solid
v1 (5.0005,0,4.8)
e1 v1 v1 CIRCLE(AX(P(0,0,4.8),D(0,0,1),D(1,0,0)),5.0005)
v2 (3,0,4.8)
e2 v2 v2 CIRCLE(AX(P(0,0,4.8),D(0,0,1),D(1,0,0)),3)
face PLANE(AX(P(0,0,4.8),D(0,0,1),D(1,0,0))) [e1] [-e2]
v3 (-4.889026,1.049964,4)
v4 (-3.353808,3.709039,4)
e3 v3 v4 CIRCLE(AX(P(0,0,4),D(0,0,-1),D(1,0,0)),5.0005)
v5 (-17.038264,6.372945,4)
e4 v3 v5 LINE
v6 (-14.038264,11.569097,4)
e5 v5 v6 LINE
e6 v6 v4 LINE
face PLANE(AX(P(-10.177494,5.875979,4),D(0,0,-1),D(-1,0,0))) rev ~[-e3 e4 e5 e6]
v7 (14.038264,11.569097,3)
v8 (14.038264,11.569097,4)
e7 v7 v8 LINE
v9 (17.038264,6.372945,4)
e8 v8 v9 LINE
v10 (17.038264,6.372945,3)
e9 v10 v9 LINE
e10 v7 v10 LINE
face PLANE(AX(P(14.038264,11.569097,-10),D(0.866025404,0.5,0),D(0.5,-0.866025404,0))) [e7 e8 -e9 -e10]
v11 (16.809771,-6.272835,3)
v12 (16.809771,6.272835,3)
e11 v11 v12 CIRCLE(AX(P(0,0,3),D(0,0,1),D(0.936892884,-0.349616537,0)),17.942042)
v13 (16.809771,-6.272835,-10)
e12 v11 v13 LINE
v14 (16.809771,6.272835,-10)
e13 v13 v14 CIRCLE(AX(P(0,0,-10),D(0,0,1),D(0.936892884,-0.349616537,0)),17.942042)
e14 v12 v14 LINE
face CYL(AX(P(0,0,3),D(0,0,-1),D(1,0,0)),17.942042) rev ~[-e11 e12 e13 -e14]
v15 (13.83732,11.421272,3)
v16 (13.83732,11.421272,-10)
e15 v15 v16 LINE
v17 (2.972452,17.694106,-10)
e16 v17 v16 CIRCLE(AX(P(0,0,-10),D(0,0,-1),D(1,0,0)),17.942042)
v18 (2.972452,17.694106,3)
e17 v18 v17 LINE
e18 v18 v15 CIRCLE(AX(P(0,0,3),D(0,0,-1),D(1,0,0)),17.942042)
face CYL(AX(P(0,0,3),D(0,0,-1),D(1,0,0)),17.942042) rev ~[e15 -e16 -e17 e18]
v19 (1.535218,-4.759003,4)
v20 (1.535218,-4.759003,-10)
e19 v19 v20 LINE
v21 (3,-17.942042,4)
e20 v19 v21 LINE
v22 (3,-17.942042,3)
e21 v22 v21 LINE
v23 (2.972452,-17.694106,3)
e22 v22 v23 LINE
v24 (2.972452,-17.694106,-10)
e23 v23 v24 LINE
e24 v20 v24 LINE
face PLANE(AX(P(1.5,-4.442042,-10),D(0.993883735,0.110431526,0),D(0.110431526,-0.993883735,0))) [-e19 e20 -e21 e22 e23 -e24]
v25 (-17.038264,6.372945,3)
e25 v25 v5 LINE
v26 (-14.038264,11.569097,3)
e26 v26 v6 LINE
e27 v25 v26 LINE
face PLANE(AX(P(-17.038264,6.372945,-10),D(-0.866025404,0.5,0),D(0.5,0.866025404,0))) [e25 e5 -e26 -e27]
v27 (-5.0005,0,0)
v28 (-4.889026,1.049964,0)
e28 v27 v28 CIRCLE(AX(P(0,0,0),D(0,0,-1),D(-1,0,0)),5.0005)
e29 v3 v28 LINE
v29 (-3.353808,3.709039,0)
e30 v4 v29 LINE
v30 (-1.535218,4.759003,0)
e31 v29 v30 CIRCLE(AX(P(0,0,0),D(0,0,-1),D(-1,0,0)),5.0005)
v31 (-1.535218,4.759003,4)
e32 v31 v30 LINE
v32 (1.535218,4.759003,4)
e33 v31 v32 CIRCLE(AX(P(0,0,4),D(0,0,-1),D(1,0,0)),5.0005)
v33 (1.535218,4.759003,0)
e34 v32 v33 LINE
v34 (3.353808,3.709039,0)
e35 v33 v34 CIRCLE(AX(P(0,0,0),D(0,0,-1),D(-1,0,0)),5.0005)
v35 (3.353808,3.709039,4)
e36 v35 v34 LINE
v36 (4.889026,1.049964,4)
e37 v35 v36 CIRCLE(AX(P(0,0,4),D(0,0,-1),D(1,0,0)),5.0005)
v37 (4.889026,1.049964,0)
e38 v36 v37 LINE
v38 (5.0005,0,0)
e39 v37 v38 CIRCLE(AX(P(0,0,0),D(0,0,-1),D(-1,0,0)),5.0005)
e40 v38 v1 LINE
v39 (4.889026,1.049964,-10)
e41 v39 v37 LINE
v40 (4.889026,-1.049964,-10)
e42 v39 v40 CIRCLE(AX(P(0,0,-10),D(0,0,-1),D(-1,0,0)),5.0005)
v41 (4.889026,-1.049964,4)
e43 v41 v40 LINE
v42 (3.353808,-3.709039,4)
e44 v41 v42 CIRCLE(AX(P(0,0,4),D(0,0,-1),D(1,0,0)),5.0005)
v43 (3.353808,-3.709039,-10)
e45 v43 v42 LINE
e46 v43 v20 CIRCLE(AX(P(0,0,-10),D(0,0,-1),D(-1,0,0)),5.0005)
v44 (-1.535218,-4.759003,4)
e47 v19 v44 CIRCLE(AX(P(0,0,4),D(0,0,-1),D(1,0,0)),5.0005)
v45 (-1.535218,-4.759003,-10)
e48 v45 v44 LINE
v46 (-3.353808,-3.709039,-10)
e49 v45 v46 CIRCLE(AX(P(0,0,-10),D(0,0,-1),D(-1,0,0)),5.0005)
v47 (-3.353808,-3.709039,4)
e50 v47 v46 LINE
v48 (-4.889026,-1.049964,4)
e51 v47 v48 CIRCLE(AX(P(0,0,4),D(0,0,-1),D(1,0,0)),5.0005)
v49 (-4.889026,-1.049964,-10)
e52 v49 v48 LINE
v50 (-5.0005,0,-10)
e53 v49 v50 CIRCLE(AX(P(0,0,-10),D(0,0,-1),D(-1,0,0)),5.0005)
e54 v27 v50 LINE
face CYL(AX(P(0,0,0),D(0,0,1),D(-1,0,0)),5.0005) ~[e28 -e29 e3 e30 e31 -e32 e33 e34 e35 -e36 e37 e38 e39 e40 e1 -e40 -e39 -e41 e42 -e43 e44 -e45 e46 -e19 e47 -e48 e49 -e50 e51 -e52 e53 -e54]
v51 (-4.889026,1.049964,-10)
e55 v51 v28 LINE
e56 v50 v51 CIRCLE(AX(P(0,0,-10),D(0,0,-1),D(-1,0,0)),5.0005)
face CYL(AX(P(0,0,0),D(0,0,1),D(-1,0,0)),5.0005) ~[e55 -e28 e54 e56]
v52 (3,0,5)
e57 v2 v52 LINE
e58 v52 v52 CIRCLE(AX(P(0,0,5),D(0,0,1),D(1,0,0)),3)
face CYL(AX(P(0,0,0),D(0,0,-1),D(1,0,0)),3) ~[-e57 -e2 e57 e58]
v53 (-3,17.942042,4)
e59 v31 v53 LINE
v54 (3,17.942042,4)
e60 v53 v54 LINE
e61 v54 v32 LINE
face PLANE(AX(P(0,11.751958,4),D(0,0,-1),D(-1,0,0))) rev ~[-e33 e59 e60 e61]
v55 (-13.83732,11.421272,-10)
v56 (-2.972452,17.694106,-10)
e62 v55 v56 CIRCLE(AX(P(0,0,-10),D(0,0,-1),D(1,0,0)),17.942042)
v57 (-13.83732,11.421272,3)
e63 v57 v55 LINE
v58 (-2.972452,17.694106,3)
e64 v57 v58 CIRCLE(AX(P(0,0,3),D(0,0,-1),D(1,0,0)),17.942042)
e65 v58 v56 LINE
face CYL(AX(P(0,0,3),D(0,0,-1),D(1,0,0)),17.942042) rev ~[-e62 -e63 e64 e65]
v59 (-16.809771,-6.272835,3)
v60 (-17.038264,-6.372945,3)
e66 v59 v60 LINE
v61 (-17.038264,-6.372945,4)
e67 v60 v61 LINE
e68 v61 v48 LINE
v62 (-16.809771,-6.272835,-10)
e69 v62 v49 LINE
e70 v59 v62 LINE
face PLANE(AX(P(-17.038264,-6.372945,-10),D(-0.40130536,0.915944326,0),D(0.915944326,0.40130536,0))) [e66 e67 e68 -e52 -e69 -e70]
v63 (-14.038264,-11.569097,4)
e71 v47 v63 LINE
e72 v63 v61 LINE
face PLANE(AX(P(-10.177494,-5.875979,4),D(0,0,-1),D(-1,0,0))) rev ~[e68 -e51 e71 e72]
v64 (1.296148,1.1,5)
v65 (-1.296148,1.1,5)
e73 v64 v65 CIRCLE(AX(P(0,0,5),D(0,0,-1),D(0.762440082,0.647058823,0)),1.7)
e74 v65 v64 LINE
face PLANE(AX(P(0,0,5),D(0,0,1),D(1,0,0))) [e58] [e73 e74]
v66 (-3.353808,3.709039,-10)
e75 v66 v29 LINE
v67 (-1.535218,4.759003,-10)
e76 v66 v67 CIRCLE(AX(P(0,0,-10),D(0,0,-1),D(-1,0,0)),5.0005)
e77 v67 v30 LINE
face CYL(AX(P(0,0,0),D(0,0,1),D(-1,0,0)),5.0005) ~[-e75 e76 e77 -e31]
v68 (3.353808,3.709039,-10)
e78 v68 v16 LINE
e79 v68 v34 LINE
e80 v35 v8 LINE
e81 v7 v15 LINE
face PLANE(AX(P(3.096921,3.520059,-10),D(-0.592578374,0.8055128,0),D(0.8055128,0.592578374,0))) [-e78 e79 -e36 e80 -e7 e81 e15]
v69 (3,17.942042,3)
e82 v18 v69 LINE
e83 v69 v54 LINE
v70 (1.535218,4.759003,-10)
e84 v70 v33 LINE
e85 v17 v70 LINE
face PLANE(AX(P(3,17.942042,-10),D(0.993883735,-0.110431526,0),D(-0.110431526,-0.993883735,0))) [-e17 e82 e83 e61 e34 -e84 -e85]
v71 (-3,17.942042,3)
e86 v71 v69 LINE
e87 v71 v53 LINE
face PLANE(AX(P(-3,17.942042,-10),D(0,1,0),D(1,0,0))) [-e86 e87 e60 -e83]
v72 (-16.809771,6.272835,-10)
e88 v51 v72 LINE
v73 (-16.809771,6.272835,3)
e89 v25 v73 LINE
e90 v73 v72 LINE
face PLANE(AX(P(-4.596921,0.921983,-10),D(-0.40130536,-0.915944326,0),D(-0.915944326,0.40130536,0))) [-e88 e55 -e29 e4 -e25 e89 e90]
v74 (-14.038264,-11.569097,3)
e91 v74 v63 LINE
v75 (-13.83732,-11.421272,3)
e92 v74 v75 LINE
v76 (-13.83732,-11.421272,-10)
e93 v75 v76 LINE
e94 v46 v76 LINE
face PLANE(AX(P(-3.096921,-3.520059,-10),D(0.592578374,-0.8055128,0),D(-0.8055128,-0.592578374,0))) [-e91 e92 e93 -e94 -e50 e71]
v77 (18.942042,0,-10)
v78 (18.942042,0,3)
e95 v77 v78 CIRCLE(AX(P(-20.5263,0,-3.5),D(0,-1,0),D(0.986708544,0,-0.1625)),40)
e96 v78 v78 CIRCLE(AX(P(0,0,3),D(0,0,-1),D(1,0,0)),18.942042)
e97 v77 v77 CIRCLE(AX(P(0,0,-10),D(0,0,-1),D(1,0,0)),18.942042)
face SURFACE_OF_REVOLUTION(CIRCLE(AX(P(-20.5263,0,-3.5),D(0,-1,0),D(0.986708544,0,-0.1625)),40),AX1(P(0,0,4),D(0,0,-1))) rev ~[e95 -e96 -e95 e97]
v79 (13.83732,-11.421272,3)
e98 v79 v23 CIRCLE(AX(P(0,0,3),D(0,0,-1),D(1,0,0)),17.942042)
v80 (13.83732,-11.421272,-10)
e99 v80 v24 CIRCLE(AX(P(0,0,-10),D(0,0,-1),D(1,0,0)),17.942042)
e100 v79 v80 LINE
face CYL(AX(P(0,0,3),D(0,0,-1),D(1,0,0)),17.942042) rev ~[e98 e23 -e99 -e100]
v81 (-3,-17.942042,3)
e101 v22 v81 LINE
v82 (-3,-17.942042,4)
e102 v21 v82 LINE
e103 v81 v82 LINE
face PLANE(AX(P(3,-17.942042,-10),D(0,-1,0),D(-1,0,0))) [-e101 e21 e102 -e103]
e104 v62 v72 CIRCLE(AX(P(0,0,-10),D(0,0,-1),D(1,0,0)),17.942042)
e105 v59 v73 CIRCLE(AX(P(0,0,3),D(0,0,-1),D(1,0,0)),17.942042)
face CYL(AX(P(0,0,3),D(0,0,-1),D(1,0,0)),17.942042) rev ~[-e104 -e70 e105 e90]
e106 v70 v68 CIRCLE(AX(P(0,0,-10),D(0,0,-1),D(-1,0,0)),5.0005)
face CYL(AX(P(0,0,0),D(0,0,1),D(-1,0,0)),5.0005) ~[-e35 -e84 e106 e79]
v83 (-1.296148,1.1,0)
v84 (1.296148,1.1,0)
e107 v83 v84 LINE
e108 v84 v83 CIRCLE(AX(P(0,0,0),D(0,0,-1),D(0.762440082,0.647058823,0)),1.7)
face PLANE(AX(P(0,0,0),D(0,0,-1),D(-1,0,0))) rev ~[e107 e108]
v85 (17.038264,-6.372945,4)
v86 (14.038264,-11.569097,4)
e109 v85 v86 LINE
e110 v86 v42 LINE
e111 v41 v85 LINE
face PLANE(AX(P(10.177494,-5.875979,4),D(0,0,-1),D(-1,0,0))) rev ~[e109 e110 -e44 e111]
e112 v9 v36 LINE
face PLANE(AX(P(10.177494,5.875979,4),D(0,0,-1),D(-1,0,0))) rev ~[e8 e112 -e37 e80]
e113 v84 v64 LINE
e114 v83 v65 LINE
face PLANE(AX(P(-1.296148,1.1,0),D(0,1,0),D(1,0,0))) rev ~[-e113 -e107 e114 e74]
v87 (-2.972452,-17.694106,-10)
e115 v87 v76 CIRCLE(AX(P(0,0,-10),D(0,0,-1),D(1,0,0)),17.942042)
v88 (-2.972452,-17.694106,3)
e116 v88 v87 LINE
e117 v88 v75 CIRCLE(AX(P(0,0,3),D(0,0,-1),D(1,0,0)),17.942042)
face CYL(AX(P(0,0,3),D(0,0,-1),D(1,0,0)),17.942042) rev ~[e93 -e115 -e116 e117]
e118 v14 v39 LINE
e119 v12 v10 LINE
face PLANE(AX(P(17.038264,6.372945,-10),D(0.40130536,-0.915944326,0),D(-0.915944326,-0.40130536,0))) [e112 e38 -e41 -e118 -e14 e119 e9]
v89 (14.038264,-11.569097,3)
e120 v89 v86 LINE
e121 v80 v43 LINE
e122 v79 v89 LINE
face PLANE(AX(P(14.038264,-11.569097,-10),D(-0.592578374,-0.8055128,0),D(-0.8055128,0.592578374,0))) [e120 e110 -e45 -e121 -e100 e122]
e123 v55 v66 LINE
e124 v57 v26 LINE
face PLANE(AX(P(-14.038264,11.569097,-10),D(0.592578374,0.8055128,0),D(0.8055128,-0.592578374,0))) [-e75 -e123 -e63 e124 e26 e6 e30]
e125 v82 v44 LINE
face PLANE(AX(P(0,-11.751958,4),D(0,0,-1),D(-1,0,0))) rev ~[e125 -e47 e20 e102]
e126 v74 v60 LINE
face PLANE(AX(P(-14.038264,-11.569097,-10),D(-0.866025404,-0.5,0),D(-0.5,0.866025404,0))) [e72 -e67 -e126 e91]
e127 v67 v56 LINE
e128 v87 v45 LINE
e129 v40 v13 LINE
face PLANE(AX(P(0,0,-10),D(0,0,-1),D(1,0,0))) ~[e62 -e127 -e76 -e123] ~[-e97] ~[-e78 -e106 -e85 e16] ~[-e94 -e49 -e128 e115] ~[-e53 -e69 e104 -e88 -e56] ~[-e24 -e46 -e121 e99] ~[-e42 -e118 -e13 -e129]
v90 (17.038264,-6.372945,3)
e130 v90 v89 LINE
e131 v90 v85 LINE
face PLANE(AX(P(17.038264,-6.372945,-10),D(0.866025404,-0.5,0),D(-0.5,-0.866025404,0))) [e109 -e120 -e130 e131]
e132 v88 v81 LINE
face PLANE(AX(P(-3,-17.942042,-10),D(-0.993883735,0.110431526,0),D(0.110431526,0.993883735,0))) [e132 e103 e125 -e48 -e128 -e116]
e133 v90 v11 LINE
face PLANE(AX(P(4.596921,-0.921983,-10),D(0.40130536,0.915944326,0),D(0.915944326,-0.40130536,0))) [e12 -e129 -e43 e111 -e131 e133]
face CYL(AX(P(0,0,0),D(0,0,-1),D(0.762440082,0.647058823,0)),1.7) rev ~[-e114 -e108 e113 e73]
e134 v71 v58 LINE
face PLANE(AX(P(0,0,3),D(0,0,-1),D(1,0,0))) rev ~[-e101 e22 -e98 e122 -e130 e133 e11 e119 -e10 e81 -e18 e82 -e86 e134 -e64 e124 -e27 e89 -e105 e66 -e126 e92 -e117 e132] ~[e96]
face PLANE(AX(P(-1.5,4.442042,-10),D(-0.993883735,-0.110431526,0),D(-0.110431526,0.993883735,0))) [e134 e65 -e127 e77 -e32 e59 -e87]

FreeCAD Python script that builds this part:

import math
import FreeCAD as App
import Part
import Sketcher

V = App.Vector
Q = App.Units.Quantity


def add_polygon(sketch, points):
    """Adds a closed chain of lines whose ends are joined by coincident constraints."""
    first, n = sketch.GeometryCount, len(points)
    for a, b in zip(points, points[1:] + points[:1]):
        sketch.addGeometry(Part.LineSegment(App.Vector(*a, 0), App.Vector(*b, 0)), False)
    for i in range(n):
        sketch.addConstraint(Sketcher.Constraint("Coincident", first + i, 2, first + (i + 1) % n, 1))

doc = App.newDocument("Part")
params = doc.addObject("Spreadsheet::Sheet", "Params")
for row, (alias, value) in enumerate([
    ("sketch1_diameter", "6 mm"),
    ("sketch1_radius", "1.7 mm"),
    ("pad1_length", "5 mm"),
    ("pad2_length", "10 mm"),
    ("sketch3_diameter", "6 mm"),
    ("pad3_length", "4.8 mm"),
    ("sketch4_width", "3 mm"),
    ("sketch4_width2", "6 mm"),
    ("sketch4_length", "6 mm"),
    ("sketch4_length2", "3 mm"),
    ("pad4_length", "14 mm"),
    ("sketch5_radius", "40 mm"),
    ("sketch5_width", "1 mm"),
    ("sketch5_height", "13 mm"),
    ("revolution_angle", "360 deg"),
], start=1):
    params.set(f"A{row}", alias)
    params.set(f"B{row}", "=" + value)
    params.setAlias(f"B{row}", alias)

body = doc.addObject("PartDesign::Body", "Body")

# Sketch on XY plane
sketch1 = doc.addObject("Sketcher::SketchObject", "Sketch")
body.addObject(sketch1)
sketch1.AttachmentSupport = (doc.XY_Plane, [""])
sketch1.MapMode = "FlatFace"
sketch1.addGeometry(Part.Circle(V(0, 0, 0), V(0, 0, 1), 3), False)
sketch1.addGeometry(Part.ArcOfCircle(Part.Circle(V(0, 0, 0), V(0, 0, 1), 1.7), math.radians(140), math.radians(400)), False)
sketch1.addGeometry(Part.LineSegment(V(-1.3, 1.1, 0), V(1.3, 1.1, 0)), False)
sketch1.addConstraint(Sketcher.Constraint("Coincident", 1, 1, 2, 1))
sketch1.addConstraint(Sketcher.Constraint("Coincident", 2, 2, 1, 2))
sketch1.addConstraint(Sketcher.Constraint("Horizontal", 2))
sketch1.addConstraint(Sketcher.Constraint("Coincident", 0, 3, -1, 1))
sketch1.addConstraint(Sketcher.Constraint("Coincident", 1, 3, -1, 1))
sketch1.addConstraint(Sketcher.Constraint("Diameter", 0, Q("6 mm")))
sketch1.addConstraint(Sketcher.Constraint("Radius", 1, Q("1.7 mm")))
sketch1.addConstraint(Sketcher.Constraint("DistanceY", -1, 1, 1, 1, Q("1.1 mm")))
sketch1.setExpression("Constraints[5]", "Params.sketch1_diameter")
sketch1.setExpression("Constraints[6]", "Params.sketch1_radius")
pad1 = doc.addObject("PartDesign::Pad", "Pad")
body.addObject(pad1)
pad1.Profile = sketch1
pad1.setExpression("Length", "Params.pad1_length")

# Sketch on XY plane
sketch2 = doc.addObject("Sketcher::SketchObject", "Sketch001")
body.addObject(sketch2)
sketch2.AttachmentSupport = (doc.XY_Plane, [""])
sketch2.MapMode = "FlatFace"
sketch2.addGeometry(Part.Circle(V(0, 0, 0), V(0, 0, 1), 5), False)
sketch2.addConstraint(Sketcher.Constraint("Coincident", 0, 3, -1, 1))
sketch2.addConstraint(Sketcher.Constraint("Diameter", 0, Q("10.001 mm")))
pad2 = doc.addObject("PartDesign::Pad", "Pad001")
body.addObject(pad2)
pad2.Profile = sketch2
pad2.setExpression("Length", "Params.pad2_length")
pad2.Reversed = True

# Sketch on XY plane
sketch3 = doc.addObject("Sketcher::SketchObject", "Sketch002")
body.addObject(sketch3)
sketch3.AttachmentSupport = (doc.XY_Plane, [""])
sketch3.MapMode = "FlatFace"
sketch3.addGeometry(Part.Circle(V(0, 0, 0), V(0, 0, 1), 5), False)
sketch3.addGeometry(Part.Circle(V(0, 0, 0), V(0, 0, 1), 3), False)
sketch3.addConstraint(Sketcher.Constraint("Coincident", 0, 3, -1, 1))
sketch3.addConstraint(Sketcher.Constraint("Coincident", 1, 3, -1, 1))
sketch3.addConstraint(Sketcher.Constraint("Diameter", 1, Q("6 mm")))
sketch3.addConstraint(Sketcher.Constraint("Diameter", 0, Q("10.001 mm")))
sketch3.setExpression("Constraints[2]", "Params.sketch3_diameter")
pad3 = doc.addObject("PartDesign::Pad", "Pad002")
body.addObject(pad3)
pad3.Profile = sketch3
pad3.setExpression("Length", "Params.pad3_length")

# Sketch on XY plane
sketch4 = doc.addObject("Sketcher::SketchObject", "Sketch003")
body.addObject(sketch4)
sketch4.AttachmentSupport = (doc.XY_Plane, [""])
sketch4.MapMode = "FlatFace"
sketch4.AttachmentOffset = App.Placement(V(0, 0, -10), App.Rotation())
add_polygon(sketch4, [(1.5, 4.4), (-1.5, 4.4), (-3, 17.9), (3, 17.9)])  # lines 0-3
add_polygon(sketch4, [(-17, 6.4), (-14, 11.6), (-3.1, 3.5), (-4.6, 0.9)])  # lines 4-7
add_polygon(sketch4, [(-14, -11.6), (-17, -6.4), (-4.6, -0.9), (-3.1, -3.5)])  # lines 8-11
add_polygon(sketch4, [(3, -17.9), (-3, -17.9), (-1.5, -4.4), (1.5, -4.4)])  # lines 12-15
add_polygon(sketch4, [(17, -6.4), (14, -11.6), (3.1, -3.5), (4.6, -0.9)])  # lines 16-19
add_polygon(sketch4, [(14, 11.6), (17, 6.4), (4.6, 0.9), (3.1, 3.5)])  # lines 20-23
sketch4.addConstraint(Sketcher.Constraint("Horizontal", 0))
sketch4.addConstraint(Sketcher.Constraint("Horizontal", 2))
sketch4.addConstraint(Sketcher.Constraint("Horizontal", 12))
sketch4.addConstraint(Sketcher.Constraint("Horizontal", 14))
sketch4.addConstraint(Sketcher.Constraint("Symmetric", 2, 2, 12, 2, -1, 1))
sketch4.addConstraint(Sketcher.Constraint("Symmetric", 3, 2, 13, 2, -1, 1))
sketch4.addConstraint(Sketcher.Constraint("Symmetric", 4, 2, 16, 2, -1, 1))
sketch4.addConstraint(Sketcher.Constraint("Symmetric", 5, 2, 17, 2, -1, 1))
sketch4.addConstraint(Sketcher.Constraint("Symmetric", 6, 2, 18, 2, -1, 1))
sketch4.addConstraint(Sketcher.Constraint("Symmetric", 7, 2, 19, 2, -1, 1))
sketch4.addConstraint(Sketcher.Constraint("Symmetric", 8, 2, 20, 2, -1, 1))
sketch4.addConstraint(Sketcher.Constraint("Symmetric", 9, 2, 21, 2, -1, 1))
sketch4.addConstraint(Sketcher.Constraint("Symmetric", 10, 2, 22, 2, -1, 1))
sketch4.addConstraint(Sketcher.Constraint("Symmetric", 11, 2, 23, 2, -1, 1))
sketch4.addConstraint(Sketcher.Constraint("Symmetric", 11, 2, 16, 2, -2))
sketch4.addConstraint(Sketcher.Constraint("Symmetric", 10, 2, 17, 2, -2))
sketch4.addConstraint(Sketcher.Constraint("Symmetric", 9, 2, 18, 2, -2))
sketch4.addConstraint(Sketcher.Constraint("Symmetric", 8, 2, 19, 2, -2))
sketch4.addConstraint(Sketcher.Constraint("Parallel", 4, 6))
sketch4.addConstraint(Sketcher.Constraint("Parallel", 1, 15))
sketch4.addConstraint(Sketcher.Constraint("Vertical", 1, 2, 12, 2))
sketch4.addConstraint(Sketcher.Constraint("Vertical", 0, 2, 13, 2))
sketch4.addConstraint(Sketcher.Constraint("Vertical", 3, 2, 14, 2))
sketch4.addConstraint(Sketcher.Constraint("Equal", 3, 5))
sketch4.addConstraint(Sketcher.Constraint("Equal", 5, 7))
sketch4.addConstraint(Sketcher.Constraint("DistanceX", 0, 2, 0, 1, Q("3 mm")))
sketch4.addConstraint(Sketcher.Constraint("DistanceX", 2, 1, 2, 2, Q("6 mm")))
sketch4.addConstraint(Sketcher.Constraint("Angle", 4, Q("60 deg")))
sketch4.addConstraint(Sketcher.Constraint("Distance", 4, Q("6 mm")))
sketch4.addConstraint(Sketcher.Constraint("Distance", 6, Q("3 mm")))
sketch4.addConstraint(Sketcher.Constraint("DistanceY", 0, 2, 1, 2, Q("13.5 mm")))
sketch4.addConstraint(Sketcher.Constraint("DistanceY", 10, 2, 0, 2, Q("7.962101 mm")))
sketch4.addConstraint(Sketcher.Constraint("DistanceY", -1, 1, 0, 2, Q("4.442042 mm")))
sketch4.addConstraint(Sketcher.Constraint("DistanceX", 5, 2, -1, 1, Q("3.096921 mm")))
sketch4.setExpression("Constraints[49]", "Params.sketch4_width")
sketch4.setExpression("Constraints[50]", "Params.sketch4_width2")
sketch4.setExpression("Constraints[52]", "Params.sketch4_length")
sketch4.setExpression("Constraints[53]", "Params.sketch4_length2")
pad4 = doc.addObject("PartDesign::Pad", "Pad003")
body.addObject(pad4)
pad4.Profile = sketch4
pad4.setExpression("Length", "Params.pad4_length")

# Sketch on YZ plane
sketch5 = doc.addObject("Sketcher::SketchObject", "Sketch004")
body.addObject(sketch5)
sketch5.AttachmentSupport = (doc.YZ_Plane, [""])
sketch5.MapMode = "FlatFace"
sketch5.addGeometry(Part.LineSegment(V(17.9, -10, 0), V(18.9, -10, 0)), False)
sketch5.addGeometry(Part.ArcOfCircle(Part.Circle(V(-20.5, -3.5, 0), V(0, 0, 1), 40), math.radians(-9.35), math.radians(9.35)), False)
sketch5.addGeometry(Part.LineSegment(V(18.9, 3, 0), V(17.9, 3, 0)), False)
sketch5.addGeometry(Part.LineSegment(V(17.9, 3, 0), V(17.9, -10, 0)), False)
sketch5.addConstraint(Sketcher.Constraint("Coincident", 0, 2, 1, 1))
sketch5.addConstraint(Sketcher.Constraint("Coincident", 1, 2, 2, 1))
sketch5.addConstraint(Sketcher.Constraint("Coincident", 2, 2, 3, 1))
sketch5.addConstraint(Sketcher.Constraint("Coincident", 3, 2, 0, 1))
sketch5.addConstraint(Sketcher.Constraint("Horizontal", 0))
sketch5.addConstraint(Sketcher.Constraint("Horizontal", 2))
sketch5.addConstraint(Sketcher.Constraint("Vertical", 3))
sketch5.addConstraint(Sketcher.Constraint("Vertical", 0, 2, 1, 2))
sketch5.addConstraint(Sketcher.Constraint("Radius", 1, Q("40 mm")))
sketch5.addConstraint(Sketcher.Constraint("DistanceX", 0, 1, 0, 2, Q("1 mm")))
sketch5.addConstraint(Sketcher.Constraint("DistanceY", 3, 2, 3, 1, Q("13 mm")))
sketch5.addConstraint(Sketcher.Constraint("DistanceY", 0, 2, -1, 1, Q("10 mm")))
sketch5.addConstraint(Sketcher.Constraint("DistanceX", 1, 3, -1, 1, Q("20.5263 mm")))
sketch5.setExpression("Constraints[8]", "Params.sketch5_radius")
sketch5.setExpression("Constraints[9]", "Params.sketch5_width")
sketch5.setExpression("Constraints[10]", "Params.sketch5_height")
revolution = doc.addObject("PartDesign::Revolution", "Revolution")
body.addObject(revolution)
revolution.Profile = sketch5
revolution.ReferenceAxis = (sketch5, ["V_Axis"])
revolution.setExpression("Angle", "Params.revolution_angle")

doc.recompute()
